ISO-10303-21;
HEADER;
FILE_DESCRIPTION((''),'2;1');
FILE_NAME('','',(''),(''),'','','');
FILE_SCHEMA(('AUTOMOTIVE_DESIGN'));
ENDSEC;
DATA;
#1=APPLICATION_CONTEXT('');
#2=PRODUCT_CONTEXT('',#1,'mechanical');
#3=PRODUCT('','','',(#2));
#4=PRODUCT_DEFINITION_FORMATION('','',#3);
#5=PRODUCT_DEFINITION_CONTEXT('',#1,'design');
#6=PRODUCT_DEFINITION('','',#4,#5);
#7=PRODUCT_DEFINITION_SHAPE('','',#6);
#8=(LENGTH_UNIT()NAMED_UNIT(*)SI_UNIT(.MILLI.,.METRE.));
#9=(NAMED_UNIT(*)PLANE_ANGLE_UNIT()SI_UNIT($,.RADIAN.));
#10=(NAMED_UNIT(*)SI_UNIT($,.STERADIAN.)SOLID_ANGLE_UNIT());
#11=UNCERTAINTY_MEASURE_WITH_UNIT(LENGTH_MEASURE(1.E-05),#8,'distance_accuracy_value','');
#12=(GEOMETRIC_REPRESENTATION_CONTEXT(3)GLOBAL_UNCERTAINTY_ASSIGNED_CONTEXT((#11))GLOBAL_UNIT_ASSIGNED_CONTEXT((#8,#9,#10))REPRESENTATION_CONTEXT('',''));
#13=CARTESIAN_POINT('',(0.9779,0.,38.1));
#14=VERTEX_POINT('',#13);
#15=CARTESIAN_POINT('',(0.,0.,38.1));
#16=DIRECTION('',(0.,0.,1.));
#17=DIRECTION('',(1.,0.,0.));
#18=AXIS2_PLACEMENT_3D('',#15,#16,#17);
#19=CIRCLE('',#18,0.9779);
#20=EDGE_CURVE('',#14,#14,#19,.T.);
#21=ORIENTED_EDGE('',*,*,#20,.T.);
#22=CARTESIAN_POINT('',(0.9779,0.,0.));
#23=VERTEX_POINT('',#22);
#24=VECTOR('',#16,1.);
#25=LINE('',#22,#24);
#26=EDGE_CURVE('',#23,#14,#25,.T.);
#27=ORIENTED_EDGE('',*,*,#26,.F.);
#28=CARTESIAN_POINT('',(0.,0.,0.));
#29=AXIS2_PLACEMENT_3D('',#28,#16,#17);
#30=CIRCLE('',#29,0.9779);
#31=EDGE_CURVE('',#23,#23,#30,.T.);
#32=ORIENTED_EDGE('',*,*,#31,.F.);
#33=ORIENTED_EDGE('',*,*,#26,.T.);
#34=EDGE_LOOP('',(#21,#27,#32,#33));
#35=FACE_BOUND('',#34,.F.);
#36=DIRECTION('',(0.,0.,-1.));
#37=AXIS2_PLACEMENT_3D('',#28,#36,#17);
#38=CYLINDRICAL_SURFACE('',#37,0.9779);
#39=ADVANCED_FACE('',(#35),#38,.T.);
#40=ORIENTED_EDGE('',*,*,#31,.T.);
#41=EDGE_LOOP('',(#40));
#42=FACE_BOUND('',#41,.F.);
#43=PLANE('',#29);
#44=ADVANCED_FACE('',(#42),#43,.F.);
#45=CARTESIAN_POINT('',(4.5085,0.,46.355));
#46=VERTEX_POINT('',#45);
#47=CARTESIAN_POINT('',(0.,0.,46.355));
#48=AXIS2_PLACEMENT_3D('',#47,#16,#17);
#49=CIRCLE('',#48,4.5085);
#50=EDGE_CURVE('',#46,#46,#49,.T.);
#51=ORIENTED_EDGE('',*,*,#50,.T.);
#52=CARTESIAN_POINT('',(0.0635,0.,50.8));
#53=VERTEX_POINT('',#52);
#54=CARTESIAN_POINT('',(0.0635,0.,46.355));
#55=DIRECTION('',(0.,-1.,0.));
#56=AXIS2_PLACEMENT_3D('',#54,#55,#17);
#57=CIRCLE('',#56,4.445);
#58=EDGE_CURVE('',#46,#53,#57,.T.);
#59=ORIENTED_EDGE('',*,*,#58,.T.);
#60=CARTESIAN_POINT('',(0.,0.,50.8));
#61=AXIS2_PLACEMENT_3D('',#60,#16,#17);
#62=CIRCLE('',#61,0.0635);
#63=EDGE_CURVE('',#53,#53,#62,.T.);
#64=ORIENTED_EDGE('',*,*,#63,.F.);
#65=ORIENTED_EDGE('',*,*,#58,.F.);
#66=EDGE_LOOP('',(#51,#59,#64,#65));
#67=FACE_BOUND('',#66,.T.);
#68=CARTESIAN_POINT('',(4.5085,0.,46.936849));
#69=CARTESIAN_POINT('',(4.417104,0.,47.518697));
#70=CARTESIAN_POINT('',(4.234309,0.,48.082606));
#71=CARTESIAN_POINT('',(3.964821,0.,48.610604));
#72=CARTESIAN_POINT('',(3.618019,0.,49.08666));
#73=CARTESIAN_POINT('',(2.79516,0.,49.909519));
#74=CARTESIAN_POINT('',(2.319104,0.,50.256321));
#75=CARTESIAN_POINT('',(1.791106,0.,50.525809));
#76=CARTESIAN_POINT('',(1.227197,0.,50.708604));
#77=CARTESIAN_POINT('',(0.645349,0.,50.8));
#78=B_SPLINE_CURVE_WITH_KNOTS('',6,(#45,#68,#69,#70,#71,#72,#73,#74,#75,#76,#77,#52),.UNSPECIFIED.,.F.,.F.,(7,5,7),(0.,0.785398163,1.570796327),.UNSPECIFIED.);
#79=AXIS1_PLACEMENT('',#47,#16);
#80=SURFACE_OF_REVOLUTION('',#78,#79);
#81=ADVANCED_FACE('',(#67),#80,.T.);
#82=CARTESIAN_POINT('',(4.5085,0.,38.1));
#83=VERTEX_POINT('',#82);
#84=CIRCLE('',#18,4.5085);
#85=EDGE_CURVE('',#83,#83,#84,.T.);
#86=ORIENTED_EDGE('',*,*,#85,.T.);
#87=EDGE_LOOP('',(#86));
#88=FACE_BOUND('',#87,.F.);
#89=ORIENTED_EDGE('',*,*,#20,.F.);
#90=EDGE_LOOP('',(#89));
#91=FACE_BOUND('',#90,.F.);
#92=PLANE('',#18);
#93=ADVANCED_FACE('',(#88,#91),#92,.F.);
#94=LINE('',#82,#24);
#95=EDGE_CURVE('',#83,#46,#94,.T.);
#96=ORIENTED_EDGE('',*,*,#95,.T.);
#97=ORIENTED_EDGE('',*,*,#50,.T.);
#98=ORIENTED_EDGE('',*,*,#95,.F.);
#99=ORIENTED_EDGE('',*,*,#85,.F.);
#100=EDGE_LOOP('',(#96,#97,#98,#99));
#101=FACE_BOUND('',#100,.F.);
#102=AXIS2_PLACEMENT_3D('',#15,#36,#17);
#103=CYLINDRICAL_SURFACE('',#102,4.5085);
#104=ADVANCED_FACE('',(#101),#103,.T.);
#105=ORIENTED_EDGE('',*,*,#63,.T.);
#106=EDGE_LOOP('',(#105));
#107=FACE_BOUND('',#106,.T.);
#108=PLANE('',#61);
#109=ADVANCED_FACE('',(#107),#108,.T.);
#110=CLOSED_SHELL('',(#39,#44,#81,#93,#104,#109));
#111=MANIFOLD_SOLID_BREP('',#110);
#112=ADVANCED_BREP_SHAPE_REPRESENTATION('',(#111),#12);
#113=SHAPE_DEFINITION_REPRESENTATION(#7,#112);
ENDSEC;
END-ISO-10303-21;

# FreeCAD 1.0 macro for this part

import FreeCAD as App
import Part
import Sketcher
from FreeCAD import Vector
Q = App.Units.Quantity


def edges_at(feature, points):
    """Names of the edges that pass closest to the given points."""
    edges = feature.Shape.Edges
    near = lambda p: min(range(len(edges)), key=lambda i: edges[i].distToShape(Part.Vertex(*p))[0])
    return sorted({f"Edge{near(p) + 1}" for p in points})

doc = App.newDocument("Part")
params = doc.addObject("Spreadsheet::Sheet", "Params")
for row, (alias, value) in enumerate([
    ("sketch1_diameter", "0.077 in"),
    ("pad1_length", "1.5 in"),
    ("sketch2_diameter", "0.355 in"),
    ("pad2_length", "0.5 in"),
    ("fillet_radius", "0.175 in"),
], start=1):
    params.set(f"A{row}", alias)
    params.set(f"B{row}", "=" + value)
    params.setAlias(f"B{row}", alias)

body = doc.addObject("PartDesign::Body", "Body")

# Sketch on XY plane
sketch1 = doc.addObject("Sketcher::SketchObject", "Sketch")
body.addObject(sketch1)
sketch1.AttachmentSupport = (doc.XY_Plane, [""])
sketch1.MapMode = "FlatFace"
sketch1.addGeometry(Part.Circle(Vector(0, 0, 0), Vector(0, 0, 1), 1), False)
sketch1.addConstraint(Sketcher.Constraint("Coincident", 0, 3, -1, 1))
sketch1.addConstraint(Sketcher.Constraint("Diameter", 0, Q("0.077 in")))
sketch1.setExpression("Constraints[1]", "Params.sketch1_diameter")
pad1 = doc.addObject("PartDesign::Pad", "Pad")
body.addObject(pad1)
pad1.Profile = sketch1
pad1.setExpression("Length", "Params.pad1_length")

# Sketch on XY plane
sketch2 = doc.addObject("Sketcher::SketchObject", "Sketch001")
body.addObject(sketch2)
sketch2.AttachmentSupport = (doc.XY_Plane, [""])
sketch2.MapMode = "FlatFace"
sketch2.AttachmentOffset = App.Placement(Vector(0, 0, 1.5 * 25.4), App.Rotation())
sketch2.addGeometry(Part.Circle(Vector(0, 0, 0), Vector(0, 0, 1), 4.5), False)
sketch2.addConstraint(Sketcher.Constraint("Coincident", 0, 3, -1, 1))
sketch2.addConstraint(Sketcher.Constraint("Diameter", 0, Q("0.355 in")))
sketch2.setExpression("Constraints[1]", "Params.sketch2_diameter")
pad2 = doc.addObject("PartDesign::Pad", "Pad001")
body.addObject(pad2)
pad2.Profile = sketch2
pad2.setExpression("Length", "Params.pad2_length")
doc.recompute()

fillet = doc.addObject("PartDesign::Fillet", "Fillet")
body.addObject(fillet)
fillet.Base = (pad2, edges_at(pad2, [(-4.508, 0, 50.8)]))
fillet.setExpression("Radius", "Params.fillet_radius")

doc.recompute()
